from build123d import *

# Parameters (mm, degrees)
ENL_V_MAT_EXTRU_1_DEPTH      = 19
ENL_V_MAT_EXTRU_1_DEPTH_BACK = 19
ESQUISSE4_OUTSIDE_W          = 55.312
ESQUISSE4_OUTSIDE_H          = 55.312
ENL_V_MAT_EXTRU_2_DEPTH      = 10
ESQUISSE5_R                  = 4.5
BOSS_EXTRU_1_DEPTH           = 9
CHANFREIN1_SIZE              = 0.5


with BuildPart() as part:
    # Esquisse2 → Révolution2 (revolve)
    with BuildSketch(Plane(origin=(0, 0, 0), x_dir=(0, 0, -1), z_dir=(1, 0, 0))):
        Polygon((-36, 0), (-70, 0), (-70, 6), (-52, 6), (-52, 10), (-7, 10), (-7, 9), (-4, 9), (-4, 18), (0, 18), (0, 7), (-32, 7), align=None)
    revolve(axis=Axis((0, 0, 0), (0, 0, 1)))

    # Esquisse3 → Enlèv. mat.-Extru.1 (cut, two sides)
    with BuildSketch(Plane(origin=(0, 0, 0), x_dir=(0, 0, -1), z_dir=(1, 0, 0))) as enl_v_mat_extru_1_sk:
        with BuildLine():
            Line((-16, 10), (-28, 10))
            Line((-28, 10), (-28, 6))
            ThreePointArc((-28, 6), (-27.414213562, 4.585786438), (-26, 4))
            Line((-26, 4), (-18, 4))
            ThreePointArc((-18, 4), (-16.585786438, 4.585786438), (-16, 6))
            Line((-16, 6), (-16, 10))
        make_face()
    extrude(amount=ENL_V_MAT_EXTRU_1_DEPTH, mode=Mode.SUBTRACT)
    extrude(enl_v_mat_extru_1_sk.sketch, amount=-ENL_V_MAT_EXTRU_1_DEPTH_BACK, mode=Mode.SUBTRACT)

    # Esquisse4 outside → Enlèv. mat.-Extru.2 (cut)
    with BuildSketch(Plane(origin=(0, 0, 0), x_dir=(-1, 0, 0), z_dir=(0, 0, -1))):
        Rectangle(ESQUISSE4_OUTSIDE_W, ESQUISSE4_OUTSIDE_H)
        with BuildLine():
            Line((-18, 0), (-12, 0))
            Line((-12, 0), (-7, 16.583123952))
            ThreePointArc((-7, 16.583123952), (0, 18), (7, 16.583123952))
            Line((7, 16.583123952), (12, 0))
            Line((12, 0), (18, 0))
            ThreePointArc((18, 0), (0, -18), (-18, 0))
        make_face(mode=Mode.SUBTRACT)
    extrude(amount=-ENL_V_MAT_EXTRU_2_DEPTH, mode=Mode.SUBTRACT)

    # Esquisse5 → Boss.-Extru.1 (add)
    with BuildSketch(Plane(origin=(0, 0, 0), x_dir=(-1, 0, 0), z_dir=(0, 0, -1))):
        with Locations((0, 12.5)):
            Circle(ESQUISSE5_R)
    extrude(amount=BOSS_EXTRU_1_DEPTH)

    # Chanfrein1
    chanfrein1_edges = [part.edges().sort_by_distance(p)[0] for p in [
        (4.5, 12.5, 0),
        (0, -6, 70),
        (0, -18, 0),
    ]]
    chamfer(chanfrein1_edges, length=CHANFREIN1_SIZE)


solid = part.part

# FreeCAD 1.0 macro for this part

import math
import FreeCAD as App
import Part
import Sketcher
from FreeCAD import Vector


def edges_at(feature, points):
    """Names of the edges that pass closest to the given points."""
    edges = feature.Shape.Edges
    near = lambda p: min(range(len(edges)), key=lambda i: edges[i].distToShape(Part.Vertex(*p))[0])
    return sorted({f"Edge{near(p) + 1}" for p in points})


def add_polygon(sketch, points):
    """Adds a closed chain of lines whose ends are joined by coincident constraints."""
    first, n = sketch.GeometryCount, len(points)
    for a, b in zip(points, points[1:] + points[:1]):
        sketch.addGeometry(Part.LineSegment(App.Vector(*a, 0), App.Vector(*b, 0)), False)
    for i in range(n):
        sketch.addConstraint(Sketcher.Constraint("Coincident", first + i, 2, first + (i + 1) % n, 1))

doc = App.newDocument("Part")
body = doc.addObject("PartDesign::Body", "Body")

# Sketch on YZ plane
sketch1 = doc.addObject("Sketcher::SketchObject", "Sketch")
body.addObject(sketch1)
sketch1.AttachmentSupport = (doc.YZ_Plane, [""])
sketch1.MapMode = "FlatFace"
add_polygon(sketch1, [(0, 70), (0, 36), (7, 32), (7, 0), (18, 0), (18, 4), (9, 4), (9, 7), (10, 7), (10, 52), (6, 52), (6, 70)])  # lines 0-11
sketch1.addConstraint([
    Sketcher.Constraint("Vertical", 0),
    Sketcher.Constraint("Vertical", 2),
    Sketcher.Constraint("Horizontal", 3),
    Sketcher.Constraint("Vertical", 4),
    Sketcher.Constraint("Horizontal", 5),
    Sketcher.Constraint("Vertical", 6),
    Sketcher.Constraint("Horizontal", 7),
    Sketcher.Constraint("Vertical", 8),
    Sketcher.Constraint("Horizontal", 9),
    Sketcher.Constraint("Vertical", 10),
    Sketcher.Constraint("Horizontal", 11),
    Sketcher.Constraint("PointOnObject", 0, 2, -2),
    Sketcher.Constraint("PointOnObject", 2, 2, -1),
    Sketcher.Constraint("Equal", 9, 4),
    Sketcher.Constraint("DistanceX", 3, 1, 3, 2, 11.0),
    Sketcher.Constraint("DistanceX", 5, 2, 5, 1, 9.0),
    Sketcher.Constraint("DistanceX", 7, 1, 7, 2, 1.0),
    Sketcher.Constraint("DistanceX", 9, 2, 9, 1, 4.0),
    Sketcher.Constraint("DistanceX", 11, 2, 11, 1, 6.0),
    Sketcher.Constraint("DistanceY", 0, 2, 0, 1, 34.0),
    Sketcher.Constraint("DistanceY", 2, 2, 2, 1, 32.0),
    Sketcher.Constraint("DistanceY", 6, 1, 6, 2, 3.0),
    Sketcher.Constraint("DistanceY", 8, 1, 8, 2, 45.0),
    Sketcher.Constraint("DistanceY", 10, 1, 10, 2, 18.0),
])
revolution = doc.addObject("PartDesign::Revolution", "Revolution")
body.addObject(revolution)
revolution.Profile = sketch1
revolution.ReferenceAxis = (sketch1, ["V_Axis"])
revolution.Angle = 360

# Sketch on YZ plane
sketch2 = doc.addObject("Sketcher::SketchObject", "Sketch001")
body.addObject(sketch2)
sketch2.AttachmentSupport = (doc.YZ_Plane, [""])
sketch2.MapMode = "FlatFace"
sketch2.addGeometry([
    Part.LineSegment(Vector(10, 16, 0), Vector(10, 28, 0)),  # 0
    Part.LineSegment(Vector(10, 28, 0), Vector(6, 28, 0)),  # 1
    Part.ArcOfCircle(Part.Circle(Vector(6, 26, 0), Vector(0, 0, 1), 2), math.radians(90), math.radians(180)),  # 2
    Part.LineSegment(Vector(4, 26, 0), Vector(4, 18, 0)),  # 3
    Part.ArcOfCircle(Part.Circle(Vector(6, 18, 0), Vector(0, 0, 1), 2), math.radians(-180), math.radians(-90)),  # 4
    Part.LineSegment(Vector(6, 16, 0), Vector(10, 16, 0)),  # 5
], False)
sketch2.addConstraint([
    Sketcher.Constraint("Coincident", 0, 2, 1, 1),
    Sketcher.Constraint("Tangent", 1, 2, 2, 1),
    Sketcher.Constraint("Tangent", 2, 2, 3, 1),
    Sketcher.Constraint("Tangent", 3, 2, 4, 1),
    Sketcher.Constraint("Tangent", 4, 2, 5, 1),
    Sketcher.Constraint("Coincident", 5, 2, 0, 1),
    Sketcher.Constraint("Vertical", 0),
    Sketcher.Constraint("Horizontal", 1),
    Sketcher.Constraint("Vertical", 3),
    Sketcher.Constraint("Horizontal", 5),
    Sketcher.Constraint("Equal", 2, 4),
    Sketcher.Constraint("Radius", 2, 2.0),
    Sketcher.Constraint("DistanceX", 1, 2, 1, 1, 4.0),
    Sketcher.Constraint("DistanceY", 0, 1, 0, 2, 12.0),
    Sketcher.Constraint("DistanceX", -1, 1, 2, 3, 6.0),
    Sketcher.Constraint("DistanceY", -1, 1, 2, 3, 26.0),
])
pocket1 = doc.addObject("PartDesign::Pocket", "Pocket")
body.addObject(pocket1)
pocket1.Profile = sketch2
pocket1.Type = "ThroughAll"
pocket1.Midplane = True

# Sketch on XY plane
sketch3 = doc.addObject("Sketcher::SketchObject", "Sketch002")
body.addObject(sketch3)
sketch3.AttachmentSupport = (doc.XY_Plane, [""])
sketch3.MapMode = "FlatFace"
add_polygon(sketch3, [(27.656, 27.656), (27.656, -27.656), (-27.656, -27.656), (-27.656, 27.656)])  # lines 0-3
sketch3.addGeometry(Part.ArcOfCircle(Part.Circle(Vector(0, 0, 0), Vector(0, 0, 1), 18), math.radians(180), math.radians(360)), False)  # 4
sketch3.addGeometry(Part.LineSegment(Vector(18, 0, 0), Vector(12, 0, 0)), False)  # 5
sketch3.addGeometry(Part.LineSegment(Vector(12, 0, 0), Vector(7, 16.583124, 0)), False)  # 6
sketch3.addGeometry(Part.ArcOfCircle(Part.Circle(Vector(0, 0, 0), Vector(0, 0, 1), 18), math.radians(67.11462), math.radians(112.88538)), False)  # 7
sketch3.addGeometry(Part.LineSegment(Vector(-7, 16.583124, 0), Vector(-12, 0, 0)), False)  # 8
sketch3.addGeometry(Part.LineSegment(Vector(-12, 0, 0), Vector(-18, 0, 0)), False)  # 9
sketch3.addConstraint([
    Sketcher.Constraint("Coincident", 4, 2, 5, 1),
    Sketcher.Constraint("Coincident", 5, 2, 6, 1),
    Sketcher.Constraint("Coincident", 6, 2, 7, 1),
    Sketcher.Constraint("Coincident", 7, 2, 8, 1),
    Sketcher.Constraint("Coincident", 8, 2, 9, 1),
    Sketcher.Constraint("Coincident", 9, 2, 4, 1),
    Sketcher.Constraint("Vertical", 0),
    Sketcher.Constraint("Horizontal", 1),
    Sketcher.Constraint("Vertical", 2),
    Sketcher.Constraint("Horizontal", 3),
    Sketcher.Constraint("Horizontal", 5),
    Sketcher.Constraint("Horizontal", 9),
    Sketcher.Constraint("Coincident", 4, 3, -1, 1),
    Sketcher.Constraint("Coincident", 7, 3, -1, 1),
    Sketcher.Constraint("Equal", 4, 7),
    Sketcher.Constraint("Symmetric", 0, 2, 2, 2, -1, 1),
    Sketcher.Constraint("Symmetric", 5, 2, 8, 2, -1, 1),
    Sketcher.Constraint("PointOnObject", 4, 2, -1),
    Sketcher.Constraint("Horizontal", 6, 2, 7, 2),
    Sketcher.Constraint("Equal", 3, 0),
    Sketcher.Constraint("Radius", 4, 18.0),
    Sketcher.Constraint("DistanceX", 5, 2, 5, 1, 6.0),
    Sketcher.Constraint("DistanceX", -1, 1, 6, 2, 7.0),
    Sketcher.Constraint("DistanceX", 1, 2, 1, 1, 55.312),
])
pocket2 = doc.addObject("PartDesign::Pocket", "Pocket001")
body.addObject(pocket2)
pocket2.Profile = sketch3
pocket2.Length = 10
pocket2.Reversed = True

# Sketch on XY plane
sketch4 = doc.addObject("Sketcher::SketchObject", "Sketch003")
body.addObject(sketch4)
sketch4.AttachmentSupport = (doc.XY_Plane, [""])
sketch4.MapMode = "FlatFace"
sketch4.addGeometry(Part.Circle(Vector(0, 12.5, 0), Vector(0, 0, 1), 4.5), False)
sketch4.addConstraint([
    Sketcher.Constraint("PointOnObject", 0, 3, -2),
    Sketcher.Constraint("Diameter", 0, 9.0),
    Sketcher.Constraint("DistanceY", -1, 1, 0, 3, 12.5),
])
pad1 = doc.addObject("PartDesign::Pad", "Pad")
body.addObject(pad1)
pad1.Profile = sketch4
pad1.Length = 9
pad1.Reversed = True
doc.recompute()

chamfer = doc.addObject("PartDesign::Chamfer", "Chamfer")
body.addObject(chamfer)
chamfer.Base = (pad1, edges_at(pad1, [(4.5, 12.5, 0), (0, -6, 70), (0, -18, 0)]))
chamfer.Size = 0.5

doc.recompute()
